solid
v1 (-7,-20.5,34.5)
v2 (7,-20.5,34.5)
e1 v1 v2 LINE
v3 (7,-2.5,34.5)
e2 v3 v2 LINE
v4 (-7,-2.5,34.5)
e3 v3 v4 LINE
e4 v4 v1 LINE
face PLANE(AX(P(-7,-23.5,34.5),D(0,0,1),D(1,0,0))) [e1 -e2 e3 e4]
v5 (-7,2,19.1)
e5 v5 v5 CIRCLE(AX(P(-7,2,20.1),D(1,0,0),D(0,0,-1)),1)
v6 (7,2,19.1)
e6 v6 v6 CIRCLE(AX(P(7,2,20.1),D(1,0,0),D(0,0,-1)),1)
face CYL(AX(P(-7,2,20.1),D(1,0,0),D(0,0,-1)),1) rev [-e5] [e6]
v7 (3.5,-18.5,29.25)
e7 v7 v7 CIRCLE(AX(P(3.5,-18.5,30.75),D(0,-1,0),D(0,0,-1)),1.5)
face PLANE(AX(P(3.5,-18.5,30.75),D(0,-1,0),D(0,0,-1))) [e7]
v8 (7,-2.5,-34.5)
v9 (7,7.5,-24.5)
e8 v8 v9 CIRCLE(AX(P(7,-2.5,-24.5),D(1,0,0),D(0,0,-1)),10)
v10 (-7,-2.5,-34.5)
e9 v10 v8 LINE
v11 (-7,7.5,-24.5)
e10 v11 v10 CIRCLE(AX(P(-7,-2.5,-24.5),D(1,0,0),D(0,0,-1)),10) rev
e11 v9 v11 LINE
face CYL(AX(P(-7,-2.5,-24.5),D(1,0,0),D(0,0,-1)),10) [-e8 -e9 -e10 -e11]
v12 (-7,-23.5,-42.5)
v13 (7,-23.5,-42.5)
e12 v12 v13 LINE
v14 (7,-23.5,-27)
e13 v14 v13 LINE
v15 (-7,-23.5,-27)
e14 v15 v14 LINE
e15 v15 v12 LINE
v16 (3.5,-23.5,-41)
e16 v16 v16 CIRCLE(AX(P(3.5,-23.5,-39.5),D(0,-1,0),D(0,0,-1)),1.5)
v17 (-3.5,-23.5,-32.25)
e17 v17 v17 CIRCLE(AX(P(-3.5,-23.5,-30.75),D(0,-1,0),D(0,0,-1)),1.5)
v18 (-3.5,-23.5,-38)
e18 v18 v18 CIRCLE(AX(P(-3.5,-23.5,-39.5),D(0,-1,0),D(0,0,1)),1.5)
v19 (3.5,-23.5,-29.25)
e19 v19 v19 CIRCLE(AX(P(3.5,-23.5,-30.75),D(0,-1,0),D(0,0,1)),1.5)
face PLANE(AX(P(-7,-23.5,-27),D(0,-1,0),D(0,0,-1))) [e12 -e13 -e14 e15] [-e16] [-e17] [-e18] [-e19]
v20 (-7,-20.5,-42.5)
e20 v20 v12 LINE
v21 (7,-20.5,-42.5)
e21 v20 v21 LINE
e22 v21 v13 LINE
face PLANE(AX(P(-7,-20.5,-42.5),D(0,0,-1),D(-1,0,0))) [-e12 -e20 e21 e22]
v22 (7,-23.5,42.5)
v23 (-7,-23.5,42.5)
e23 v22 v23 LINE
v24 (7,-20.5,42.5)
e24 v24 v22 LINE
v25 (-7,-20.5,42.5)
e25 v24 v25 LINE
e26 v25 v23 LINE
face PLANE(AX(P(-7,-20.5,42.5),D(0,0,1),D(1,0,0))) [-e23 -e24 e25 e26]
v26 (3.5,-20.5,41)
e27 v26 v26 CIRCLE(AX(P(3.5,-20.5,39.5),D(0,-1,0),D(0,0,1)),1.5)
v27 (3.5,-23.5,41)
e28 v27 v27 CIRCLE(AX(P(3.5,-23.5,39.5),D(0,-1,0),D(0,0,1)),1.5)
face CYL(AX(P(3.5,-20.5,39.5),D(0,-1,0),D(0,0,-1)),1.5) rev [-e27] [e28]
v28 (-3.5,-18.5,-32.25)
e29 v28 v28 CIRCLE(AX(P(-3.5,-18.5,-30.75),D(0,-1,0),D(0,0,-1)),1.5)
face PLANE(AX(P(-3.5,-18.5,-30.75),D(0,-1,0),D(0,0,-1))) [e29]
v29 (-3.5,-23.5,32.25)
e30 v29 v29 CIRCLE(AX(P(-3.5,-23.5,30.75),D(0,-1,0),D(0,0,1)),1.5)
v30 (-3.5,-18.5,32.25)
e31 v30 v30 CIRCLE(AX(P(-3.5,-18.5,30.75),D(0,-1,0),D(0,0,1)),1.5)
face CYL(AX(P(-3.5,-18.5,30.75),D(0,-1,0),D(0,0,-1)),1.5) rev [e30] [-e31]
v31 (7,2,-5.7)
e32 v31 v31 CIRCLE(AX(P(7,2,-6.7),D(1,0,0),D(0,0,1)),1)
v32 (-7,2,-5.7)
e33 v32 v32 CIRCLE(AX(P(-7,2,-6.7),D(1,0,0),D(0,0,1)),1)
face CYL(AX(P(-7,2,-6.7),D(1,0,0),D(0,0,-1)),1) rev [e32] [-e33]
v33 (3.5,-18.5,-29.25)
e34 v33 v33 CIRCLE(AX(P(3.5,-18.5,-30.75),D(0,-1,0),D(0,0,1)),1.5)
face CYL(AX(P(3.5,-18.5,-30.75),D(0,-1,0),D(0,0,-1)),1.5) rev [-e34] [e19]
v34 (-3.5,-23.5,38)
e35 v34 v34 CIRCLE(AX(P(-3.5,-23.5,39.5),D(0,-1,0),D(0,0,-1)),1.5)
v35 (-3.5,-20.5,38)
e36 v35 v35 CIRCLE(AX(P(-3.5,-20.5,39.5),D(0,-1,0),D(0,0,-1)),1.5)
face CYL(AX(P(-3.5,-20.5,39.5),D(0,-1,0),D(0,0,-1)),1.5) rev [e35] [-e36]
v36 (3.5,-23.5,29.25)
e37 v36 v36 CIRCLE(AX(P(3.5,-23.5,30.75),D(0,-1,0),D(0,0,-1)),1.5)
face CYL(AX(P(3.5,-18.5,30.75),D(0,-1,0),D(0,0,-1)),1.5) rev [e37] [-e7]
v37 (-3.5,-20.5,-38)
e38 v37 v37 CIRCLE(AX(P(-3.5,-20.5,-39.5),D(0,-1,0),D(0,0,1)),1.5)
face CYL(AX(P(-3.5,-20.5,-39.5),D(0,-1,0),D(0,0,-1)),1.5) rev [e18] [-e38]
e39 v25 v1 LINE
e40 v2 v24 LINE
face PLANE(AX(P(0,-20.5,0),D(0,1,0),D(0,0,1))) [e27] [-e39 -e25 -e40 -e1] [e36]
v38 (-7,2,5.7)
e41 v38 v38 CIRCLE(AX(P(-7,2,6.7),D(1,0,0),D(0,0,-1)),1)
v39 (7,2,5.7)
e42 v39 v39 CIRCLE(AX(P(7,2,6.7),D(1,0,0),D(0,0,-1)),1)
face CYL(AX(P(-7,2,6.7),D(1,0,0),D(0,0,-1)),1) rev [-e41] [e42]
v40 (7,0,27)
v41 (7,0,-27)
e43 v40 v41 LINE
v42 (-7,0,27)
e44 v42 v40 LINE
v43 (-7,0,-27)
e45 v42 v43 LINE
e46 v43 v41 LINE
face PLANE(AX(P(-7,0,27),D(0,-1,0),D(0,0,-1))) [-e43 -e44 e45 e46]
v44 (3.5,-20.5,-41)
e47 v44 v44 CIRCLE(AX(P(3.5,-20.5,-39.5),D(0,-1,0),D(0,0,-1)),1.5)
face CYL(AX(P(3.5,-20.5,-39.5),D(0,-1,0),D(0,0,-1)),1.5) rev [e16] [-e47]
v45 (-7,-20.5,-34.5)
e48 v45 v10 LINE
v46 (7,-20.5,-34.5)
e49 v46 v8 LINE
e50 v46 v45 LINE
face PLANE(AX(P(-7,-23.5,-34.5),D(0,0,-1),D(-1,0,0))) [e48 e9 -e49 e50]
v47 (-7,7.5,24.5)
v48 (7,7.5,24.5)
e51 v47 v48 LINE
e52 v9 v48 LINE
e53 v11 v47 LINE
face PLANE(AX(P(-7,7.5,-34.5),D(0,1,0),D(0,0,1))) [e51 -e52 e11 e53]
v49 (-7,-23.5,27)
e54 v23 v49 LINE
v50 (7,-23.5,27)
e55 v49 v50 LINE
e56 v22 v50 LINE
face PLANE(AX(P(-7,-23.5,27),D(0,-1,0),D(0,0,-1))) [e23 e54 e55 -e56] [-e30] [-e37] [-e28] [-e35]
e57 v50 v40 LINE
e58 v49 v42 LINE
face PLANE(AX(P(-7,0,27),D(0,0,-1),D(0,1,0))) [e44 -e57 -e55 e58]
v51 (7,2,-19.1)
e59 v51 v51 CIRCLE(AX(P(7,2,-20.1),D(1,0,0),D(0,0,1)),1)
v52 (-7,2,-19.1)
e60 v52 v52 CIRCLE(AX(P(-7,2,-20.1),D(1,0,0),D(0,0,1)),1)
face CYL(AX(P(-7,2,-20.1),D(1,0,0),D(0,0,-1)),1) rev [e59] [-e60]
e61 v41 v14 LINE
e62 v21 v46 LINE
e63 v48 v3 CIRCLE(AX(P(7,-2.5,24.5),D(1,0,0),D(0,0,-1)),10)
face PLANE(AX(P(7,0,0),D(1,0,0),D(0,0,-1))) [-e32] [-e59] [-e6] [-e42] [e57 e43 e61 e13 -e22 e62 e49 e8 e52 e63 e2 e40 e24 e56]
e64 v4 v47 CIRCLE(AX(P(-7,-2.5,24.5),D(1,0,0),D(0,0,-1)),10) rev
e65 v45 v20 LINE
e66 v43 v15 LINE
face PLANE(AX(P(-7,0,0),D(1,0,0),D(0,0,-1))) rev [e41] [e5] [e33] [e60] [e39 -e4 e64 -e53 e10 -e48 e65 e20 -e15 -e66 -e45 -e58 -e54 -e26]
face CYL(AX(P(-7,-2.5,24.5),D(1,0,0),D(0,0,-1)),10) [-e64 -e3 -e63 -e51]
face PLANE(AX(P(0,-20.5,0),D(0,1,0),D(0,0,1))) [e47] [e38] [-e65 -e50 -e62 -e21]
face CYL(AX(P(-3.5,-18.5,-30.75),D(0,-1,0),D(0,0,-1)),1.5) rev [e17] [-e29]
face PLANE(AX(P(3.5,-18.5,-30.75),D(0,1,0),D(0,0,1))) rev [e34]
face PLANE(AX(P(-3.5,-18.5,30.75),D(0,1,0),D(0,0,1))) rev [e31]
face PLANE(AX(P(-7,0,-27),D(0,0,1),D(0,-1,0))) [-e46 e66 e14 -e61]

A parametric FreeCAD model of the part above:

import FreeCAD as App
import Part
import Sketcher
from FreeCAD import Vector


def edges_at(feature, points):
    """Names of the edges that pass closest to the given points."""
    edges = feature.Shape.Edges
    near = lambda p: min(range(len(edges)), key=lambda i: edges[i].distToShape(Part.Vertex(*p))[0])
    return sorted({f"Edge{near(p) + 1}" for p in points})


def add_polygon(sketch, points):
    """Adds a closed chain of lines whose ends are joined by coincident constraints."""
    first, n = sketch.GeometryCount, len(points)
    for a, b in zip(points, points[1:] + points[:1]):
        sketch.addGeometry(Part.LineSegment(App.Vector(*a, 0), App.Vector(*b, 0)), False)
    for i in range(n):
        sketch.addConstraint(Sketcher.Constraint("Coincident", first + i, 2, first + (i + 1) % n, 1))

doc = App.newDocument("Part")
params = doc.addObject("Spreadsheet::Sheet", "Params")
for row, (alias, value) in enumerate([
    ("sketch1_width", "31 mm"),
    ("sketch1_height", "54 mm"),
    ("sketch1_height2", "69 mm"),
    ("sketch1_width2", "23.5 mm"),
    ("pad1_length", "7 mm"),
    ("pad1_length2", "7 mm"),
    ("fillet_radius", "10 mm"),
    ("sketch2_diameter", "2 mm"),
    ("sketch3_diameter", "3 mm"),
    ("pocket2_length", "5 mm"),
    ("sketch4_diameter", "3 mm"),
    ("sketch4_width", "14 mm"),
    ("sketch4_height", "8 mm"),
    ("pad2_length", "3 mm"),
], start=1):
    params.set(f"A{row}", alias)
    params.set(f"B{row}", "=" + value)
    params.setAlias(f"B{row}", alias)

body = doc.addObject("PartDesign::Body", "Body")

# Sketch on YZ plane
sketch1 = body.newObject("Sketcher::SketchObject", "Sketch")
sketch1.AttachmentSupport = (doc.getObject("YZ_Plane"), [""])
sketch1.MapMode = "FlatFace"
add_polygon(sketch1, [(0, 27), (0, -27), (-24, -27), (-24, -34), (8, -34), (8, 34), (-24, 34), (-24, 27)])  # lines 0-7
sketch1.addConstraint([
    Sketcher.Constraint("Vertical", 0),
    Sketcher.Constraint("Horizontal", 1),
    Sketcher.Constraint("Vertical", 2),
    Sketcher.Constraint("Horizontal", 3),
    Sketcher.Constraint("Vertical", 4),
    Sketcher.Constraint("Horizontal", 5),
    Sketcher.Constraint("Vertical", 6),
    Sketcher.Constraint("Horizontal", 7),
    Sketcher.Constraint("Symmetric", 0, 2, 7, 2, -1, 1),
    Sketcher.Constraint("Symmetric", 2, 2, 5, 2, -1),
    Sketcher.Constraint("DistanceX", 3, 1, 3, 2, 31.0),
    Sketcher.Constraint("DistanceY", 0, 2, 0, 1, 54.0),
    Sketcher.Constraint("DistanceY", 4, 1, 4, 2, 69.0),
    Sketcher.Constraint("DistanceX", 1, 2, 1, 1, 23.5),
])
sketch1.setExpression("Constraints[18]", "Params.sketch1_width")
sketch1.setExpression("Constraints[19]", "Params.sketch1_height")
sketch1.setExpression("Constraints[20]", "Params.sketch1_height2")
sketch1.setExpression("Constraints[21]", "Params.sketch1_width2")
pad1 = body.newObject("PartDesign::Pad", "Pad")
pad1.Profile = sketch1
pad1.Type = "TwoLengths"
pad1.setExpression("Length", "Params.pad1_length")
pad1.setExpression("Length2", "Params.pad1_length2")
doc.recompute()

fillet = body.newObject("PartDesign::Fillet", "Fillet")
fillet.Base = (pad1, edges_at(pad1, [(0, 7.5, 34.5), (0, 7.5, -34.5)]))
fillet.setExpression("Radius", "Params.fillet_radius")

# Sketch on YZ plane
sketch2 = body.newObject("Sketcher::SketchObject", "Sketch001")
sketch2.AttachmentSupport = (doc.getObject("YZ_Plane"), [""])
sketch2.MapMode = "FlatFace"
sketch2.AttachmentOffset = App.Placement(Vector(0, 0, 7), App.Rotation())
sketch2.addGeometry([
    Part.Circle(Vector(2, 6.7, 0), Vector(0, 0, 1), 1),
    Part.Circle(Vector(2, 20.1, 0), Vector(0, 0, 1), 1),
    Part.Circle(Vector(2, -20.1, 0), Vector(0, 0, 1), 1),
    Part.Circle(Vector(2, -6.7, 0), Vector(0, 0, 1), 1),
], False)
sketch2.addConstraint([
    Sketcher.Constraint("Equal", 0, 1),
    Sketcher.Constraint("Equal", 1, 2),
    Sketcher.Constraint("Equal", 2, 3),
    Sketcher.Constraint("Symmetric", 1, 3, 2, 3, -1),
    Sketcher.Constraint("Symmetric", 0, 3, 3, 3, -1),
    Sketcher.Constraint("Vertical", 0, 3, 1, 3),
    Sketcher.Constraint("Diameter", 0, 2.0),
    Sketcher.Constraint("DistanceX", -1, 1, 0, 3, 2.0),
    Sketcher.Constraint("DistanceY", -1, 1, 0, 3, 6.7),
    Sketcher.Constraint("DistanceY", -1, 1, 1, 3, 20.1),
])
sketch2.setExpression("Constraints[6]", "Params.sketch2_diameter")
pocket1 = body.newObject("PartDesign::Pocket", "Pocket")
pocket1.Profile = sketch2
pocket1.Type = "ThroughAll"

# Sketch on XZ plane
sketch3 = body.newObject("Sketcher::SketchObject", "Sketch002")
sketch3.AttachmentSupport = (doc.getObject("XZ_Plane"), [""])
sketch3.MapMode = "FlatFace"
sketch3.AttachmentOffset = App.Placement(Vector(0, 0, 23.5), App.Rotation())
sketch3.addGeometry([
    Part.Circle(Vector(-3.5, -30.8, 0), Vector(0, 0, 1), 1.5),
    Part.Circle(Vector(3.5, -30.8, 0), Vector(0, 0, 1), 1.5),
    Part.Circle(Vector(-3.5, 30.8, 0), Vector(0, 0, 1), 1.5),
    Part.Circle(Vector(3.5, 30.8, 0), Vector(0, 0, 1), 1.5),
], False)
sketch3.addConstraint([
    Sketcher.Constraint("Equal", 0, 1),
    Sketcher.Constraint("Equal", 1, 2),
    Sketcher.Constraint("Equal", 2, 3),
    Sketcher.Constraint("Symmetric", 1, 3, 2, 3, -1, 1),
    Sketcher.Constraint("Symmetric", 0, 3, 3, 3, -1, 1),
    Sketcher.Constraint("Symmetric", 0, 3, 1, 3, -2),
    Sketcher.Constraint("Diameter", 0, 3.0),
    Sketcher.Constraint("DistanceX", 0, 3, 1, 3, 7.0),
    Sketcher.Constraint("DistanceY", 0, 3, 2, 3, 61.5),
])
sketch3.setExpression("Constraints[6]", "Params.sketch3_diameter")
pocket2 = body.newObject("PartDesign::Pocket", "Pocket001")
pocket2.Profile = sketch3
pocket2.setExpression("Length", "Params.pocket2_length")

# Sketch on XZ plane
sketch4 = body.newObject("Sketcher::SketchObject", "Sketch003")
sketch4.AttachmentSupport = (doc.getObject("XZ_Plane"), [""])
sketch4.MapMode = "FlatFace"
sketch4.AttachmentOffset = App.Placement(Vector(0, 0, 23.5), App.Rotation())
add_polygon(sketch4, [(-7, 42.5), (-7, 34.5), (7, 34.5), (7, 42.5)])  # lines 0-3
sketch4.addGeometry(Part.Circle(Vector(-3.5, 39.5, 0), Vector(0, 0, 1), 1.5), False)  # 4
sketch4.addGeometry(Part.Circle(Vector(3.5, 39.5, 0), Vector(0, 0, 1), 1.5), False)  # 5
add_polygon(sketch4, [(-7, -34.5), (-7, -42.5), (7, -42.5), (7, -34.5)])  # lines 6-9
sketch4.addGeometry(Part.Circle(Vector(-3.5, -39.5, 0), Vector(0, 0, 1), 1.5), False)  # 10
sketch4.addGeometry(Part.Circle(Vector(3.5, -39.5, 0), Vector(0, 0, 1), 1.5), False)  # 11
sketch4.addConstraint([
    Sketcher.Constraint("Vertical", 0),
    Sketcher.Constraint("Horizontal", 1),
    Sketcher.Constraint("Vertical", 2),
    Sketcher.Constraint("Horizontal", 3),
    Sketcher.Constraint("Vertical", 6),
    Sketcher.Constraint("Horizontal", 7),
    Sketcher.Constraint("Vertical", 8),
    Sketcher.Constraint("Horizontal", 9),
    Sketcher.Constraint("Equal", 4, 5),
    Sketcher.Constraint("Equal", 5, 10),
    Sketcher.Constraint("Equal", 10, 11),
    Sketcher.Constraint("Symmetric", 5, 3, 10, 3, -1, 1),
    Sketcher.Constraint("Symmetric", 4, 3, 11, 3, -1, 1),
    Sketcher.Constraint("Symmetric", 2, 2, 6, 2, -1, 1),
    Sketcher.Constraint("Symmetric", 0, 2, 8, 2, -1, 1),
    Sketcher.Constraint("Symmetric", 4, 3, 5, 3, -2),
    Sketcher.Constraint("Vertical", 3, 2, 6, 2),
    Sketcher.Constraint("Diameter", 4, 3.0),
    Sketcher.Constraint("DistanceX", 1, 1, 1, 2, 14.0),
    Sketcher.Constraint("DistanceY", 0, 2, 0, 1, 8.0),
    Sketcher.Constraint("DistanceX", 4, 3, 5, 3, 7.0),
    Sketcher.Constraint("DistanceY", 10, 3, 4, 3, 79.0),
    Sketcher.Constraint("DistanceY", 0, 2, 4, 3, 5.0),
])
sketch4.setExpression("Constraints[25]", "Params.sketch4_diameter")
sketch4.setExpression("Constraints[26]", "Params.sketch4_width")
sketch4.setExpression("Constraints[27]", "Params.sketch4_height")
pad2 = body.newObject("PartDesign::Pad", "Pad001")
pad2.Profile = sketch4
pad2.setExpression("Length", "Params.pad2_length")
pad2.Reversed = True

doc.recompute()
